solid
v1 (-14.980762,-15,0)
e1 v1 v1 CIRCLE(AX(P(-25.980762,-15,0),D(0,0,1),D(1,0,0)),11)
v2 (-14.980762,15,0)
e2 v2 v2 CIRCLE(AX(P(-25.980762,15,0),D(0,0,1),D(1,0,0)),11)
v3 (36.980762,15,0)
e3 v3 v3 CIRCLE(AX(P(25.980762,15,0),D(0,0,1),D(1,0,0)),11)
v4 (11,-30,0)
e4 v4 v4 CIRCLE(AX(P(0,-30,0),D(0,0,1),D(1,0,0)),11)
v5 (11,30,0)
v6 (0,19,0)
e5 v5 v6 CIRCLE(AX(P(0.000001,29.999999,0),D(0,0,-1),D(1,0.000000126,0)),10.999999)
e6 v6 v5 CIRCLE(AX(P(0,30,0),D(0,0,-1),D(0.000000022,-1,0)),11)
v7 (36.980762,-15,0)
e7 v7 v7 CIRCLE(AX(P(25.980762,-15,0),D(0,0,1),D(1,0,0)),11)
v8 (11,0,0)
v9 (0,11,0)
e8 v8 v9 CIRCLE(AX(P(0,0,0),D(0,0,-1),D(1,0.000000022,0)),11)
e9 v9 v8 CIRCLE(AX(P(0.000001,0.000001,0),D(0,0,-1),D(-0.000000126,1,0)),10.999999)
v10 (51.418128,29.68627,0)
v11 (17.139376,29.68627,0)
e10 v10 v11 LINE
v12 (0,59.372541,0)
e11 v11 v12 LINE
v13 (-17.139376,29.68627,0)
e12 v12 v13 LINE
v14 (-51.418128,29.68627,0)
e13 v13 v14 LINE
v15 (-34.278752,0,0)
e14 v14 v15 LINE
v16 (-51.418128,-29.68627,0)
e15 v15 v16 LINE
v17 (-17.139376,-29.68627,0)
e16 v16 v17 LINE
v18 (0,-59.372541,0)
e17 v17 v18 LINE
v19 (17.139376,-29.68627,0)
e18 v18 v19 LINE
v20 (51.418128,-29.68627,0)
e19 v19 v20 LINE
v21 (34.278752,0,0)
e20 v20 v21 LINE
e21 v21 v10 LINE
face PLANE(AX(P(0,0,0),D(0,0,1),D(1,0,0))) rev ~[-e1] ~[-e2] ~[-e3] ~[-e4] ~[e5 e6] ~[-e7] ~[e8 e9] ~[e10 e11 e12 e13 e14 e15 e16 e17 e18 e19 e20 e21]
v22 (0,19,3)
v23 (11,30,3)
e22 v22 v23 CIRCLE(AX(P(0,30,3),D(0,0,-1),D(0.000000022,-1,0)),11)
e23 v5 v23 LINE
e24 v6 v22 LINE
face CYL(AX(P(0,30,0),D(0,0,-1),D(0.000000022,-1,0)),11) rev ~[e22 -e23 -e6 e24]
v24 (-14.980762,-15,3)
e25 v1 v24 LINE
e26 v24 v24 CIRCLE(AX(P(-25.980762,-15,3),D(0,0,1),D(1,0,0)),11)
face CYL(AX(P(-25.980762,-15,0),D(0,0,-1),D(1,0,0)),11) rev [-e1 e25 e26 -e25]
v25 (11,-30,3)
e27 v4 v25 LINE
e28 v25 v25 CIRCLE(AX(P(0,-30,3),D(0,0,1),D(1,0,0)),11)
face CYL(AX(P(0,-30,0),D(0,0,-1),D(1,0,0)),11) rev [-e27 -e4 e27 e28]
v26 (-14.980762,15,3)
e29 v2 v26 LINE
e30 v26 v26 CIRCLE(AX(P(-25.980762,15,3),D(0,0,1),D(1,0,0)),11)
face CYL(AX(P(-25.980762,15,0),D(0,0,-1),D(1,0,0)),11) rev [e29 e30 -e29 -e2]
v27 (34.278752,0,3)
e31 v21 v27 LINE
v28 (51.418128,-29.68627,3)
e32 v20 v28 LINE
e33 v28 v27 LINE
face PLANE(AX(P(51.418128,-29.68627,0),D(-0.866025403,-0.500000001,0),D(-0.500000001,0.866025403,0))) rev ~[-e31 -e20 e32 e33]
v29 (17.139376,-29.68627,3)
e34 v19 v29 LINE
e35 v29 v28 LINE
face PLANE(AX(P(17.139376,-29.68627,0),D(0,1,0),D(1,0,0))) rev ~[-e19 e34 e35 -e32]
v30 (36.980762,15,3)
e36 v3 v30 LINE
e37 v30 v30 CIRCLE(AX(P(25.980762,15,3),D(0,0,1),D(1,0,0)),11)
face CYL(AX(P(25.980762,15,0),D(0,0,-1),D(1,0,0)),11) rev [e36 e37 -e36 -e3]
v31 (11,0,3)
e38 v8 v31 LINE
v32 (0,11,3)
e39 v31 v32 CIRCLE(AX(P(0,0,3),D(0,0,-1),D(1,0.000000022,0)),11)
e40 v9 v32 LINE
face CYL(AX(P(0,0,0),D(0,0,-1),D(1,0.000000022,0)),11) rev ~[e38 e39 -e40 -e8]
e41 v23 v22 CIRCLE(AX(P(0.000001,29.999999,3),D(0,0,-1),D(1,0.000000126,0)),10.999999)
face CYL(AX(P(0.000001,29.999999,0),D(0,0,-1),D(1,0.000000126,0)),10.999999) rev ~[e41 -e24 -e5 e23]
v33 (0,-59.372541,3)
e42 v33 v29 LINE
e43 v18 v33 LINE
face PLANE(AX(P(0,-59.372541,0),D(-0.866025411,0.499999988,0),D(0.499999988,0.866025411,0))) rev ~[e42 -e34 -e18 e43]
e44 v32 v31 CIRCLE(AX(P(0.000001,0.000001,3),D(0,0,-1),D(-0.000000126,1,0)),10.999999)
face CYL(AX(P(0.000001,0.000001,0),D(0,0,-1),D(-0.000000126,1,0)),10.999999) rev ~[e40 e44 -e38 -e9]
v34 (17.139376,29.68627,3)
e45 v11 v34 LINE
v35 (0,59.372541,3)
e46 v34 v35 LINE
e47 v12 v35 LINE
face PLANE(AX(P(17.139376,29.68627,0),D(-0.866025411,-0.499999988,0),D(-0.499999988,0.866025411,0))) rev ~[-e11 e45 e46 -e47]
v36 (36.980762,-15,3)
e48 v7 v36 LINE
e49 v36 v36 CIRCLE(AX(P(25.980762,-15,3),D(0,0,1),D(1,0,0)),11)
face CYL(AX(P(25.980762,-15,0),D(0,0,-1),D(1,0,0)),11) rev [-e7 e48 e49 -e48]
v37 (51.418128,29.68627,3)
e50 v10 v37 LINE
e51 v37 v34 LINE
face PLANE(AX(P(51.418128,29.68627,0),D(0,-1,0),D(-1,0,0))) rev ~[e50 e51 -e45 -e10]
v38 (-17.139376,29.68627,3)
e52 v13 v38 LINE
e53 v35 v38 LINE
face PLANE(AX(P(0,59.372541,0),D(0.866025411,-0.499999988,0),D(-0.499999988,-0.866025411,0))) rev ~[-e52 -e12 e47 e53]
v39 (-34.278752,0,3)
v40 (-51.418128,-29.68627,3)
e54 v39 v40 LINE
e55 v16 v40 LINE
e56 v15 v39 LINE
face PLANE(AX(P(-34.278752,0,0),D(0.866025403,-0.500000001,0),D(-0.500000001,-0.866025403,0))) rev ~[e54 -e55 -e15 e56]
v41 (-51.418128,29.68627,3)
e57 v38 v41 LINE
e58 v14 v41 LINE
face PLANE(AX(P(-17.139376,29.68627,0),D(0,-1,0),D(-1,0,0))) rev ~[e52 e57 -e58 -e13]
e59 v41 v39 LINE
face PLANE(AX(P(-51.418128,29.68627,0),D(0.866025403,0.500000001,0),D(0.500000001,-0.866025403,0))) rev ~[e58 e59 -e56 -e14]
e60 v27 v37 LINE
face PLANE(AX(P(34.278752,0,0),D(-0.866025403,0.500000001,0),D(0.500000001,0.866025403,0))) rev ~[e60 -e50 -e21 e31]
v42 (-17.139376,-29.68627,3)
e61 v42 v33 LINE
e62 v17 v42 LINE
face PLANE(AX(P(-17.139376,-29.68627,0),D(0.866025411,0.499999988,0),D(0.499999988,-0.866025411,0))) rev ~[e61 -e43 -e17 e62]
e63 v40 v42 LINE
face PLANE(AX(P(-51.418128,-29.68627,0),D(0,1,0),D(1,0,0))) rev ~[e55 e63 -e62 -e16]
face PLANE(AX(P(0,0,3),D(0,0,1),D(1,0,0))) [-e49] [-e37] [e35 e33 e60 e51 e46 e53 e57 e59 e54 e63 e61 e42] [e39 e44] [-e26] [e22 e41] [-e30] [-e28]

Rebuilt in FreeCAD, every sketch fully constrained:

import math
import FreeCAD as App
import Part
import Sketcher
Q = App.Units.Quantity

doc = App.newDocument("Part")
params = doc.addObject("Spreadsheet::Sheet", "Params")
for row, (alias, value) in enumerate([
    ("sketch1_diameter", "22 mm"),
    ("pad1_length", "3 mm"),
], start=1):
    params.set(f"A{row}", alias)
    params.set(f"B{row}", "=" + value)
    params.setAlias(f"B{row}", alias)

body = doc.addObject("PartDesign::Body", "Body")

# Sketch on XY plane
sketch1 = doc.addObject("Sketcher::SketchObject", "Sketch")
body.addObject(sketch1)
sketch1.AttachmentSupport = (doc.XY_Plane, [""])
sketch1.MapMode = "FlatFace"
sketch1.addGeometry([
    Part.LineSegment(App.Vector(-17, 30, 0), App.Vector(-51, 30, 0)),  # 0
    Part.LineSegment(App.Vector(-51, 30, 0), App.Vector(-34, 0, 0)),  # 1
    Part.LineSegment(App.Vector(-34, 0, 0), App.Vector(-51, -30, 0)),  # 2
    Part.LineSegment(App.Vector(-51, -30, 0), App.Vector(-17, -30, 0)),  # 3
    Part.LineSegment(App.Vector(-17, -30, 0), App.Vector(0, -59, 0)),  # 4
    Part.LineSegment(App.Vector(0, -59, 0), App.Vector(17, -30, 0)),  # 5
    Part.LineSegment(App.Vector(17, -30, 0), App.Vector(51, -30, 0)),  # 6
    Part.LineSegment(App.Vector(51, -30, 0), App.Vector(34, 0, 0)),  # 7
    Part.LineSegment(App.Vector(34, 0, 0), App.Vector(51, 30, 0)),  # 8
    Part.LineSegment(App.Vector(51, 30, 0), App.Vector(17, 30, 0)),  # 9
    Part.LineSegment(App.Vector(17, 30, 0), App.Vector(0, 59, 0)),  # 10
    Part.LineSegment(App.Vector(0, 59, 0), App.Vector(-17, 30, 0)),  # 11
    Part.Circle(App.Vector(-26, -15, 0), App.Vector(0, 0, 1), 11),  # 12
    Part.ArcOfCircle(Part.Circle(App.Vector(0, 0, 0), App.Vector(0, 0, 1), 11), math.radians(90), math.radians(360)),  # 13
    Part.ArcOfCircle(Part.Circle(App.Vector(0, 0, 0), App.Vector(0, 0, 1), 11), math.radians(0), math.radians(90)),  # 14
    Part.Circle(App.Vector(0, -30, 0), App.Vector(0, 0, 1), 11),  # 15
    Part.Circle(App.Vector(26, -15, 0), App.Vector(0, 0, 1), 11),  # 16
    Part.Circle(App.Vector(-26, 15, 0), App.Vector(0, 0, 1), 11),  # 17
    Part.ArcOfCircle(Part.Circle(App.Vector(0, 30, 0), App.Vector(0, 0, 1), 11), math.radians(0), math.radians(270)),  # 18
    Part.ArcOfCircle(Part.Circle(App.Vector(0, 30, 0), App.Vector(0, 0, 1), 11), math.radians(-90), math.radians(0)),  # 19
    Part.Circle(App.Vector(26, 15, 0), App.Vector(0, 0, 1), 11),  # 20
], False)
sketch1.addConstraint([
    Sketcher.Constraint("Coincident", 0, 2, 1, 1),
    Sketcher.Constraint("Coincident", 1, 2, 2, 1),
    Sketcher.Constraint("Coincident", 2, 2, 3, 1),
    Sketcher.Constraint("Coincident", 3, 2, 4, 1),
    Sketcher.Constraint("Coincident", 4, 2, 5, 1),
    Sketcher.Constraint("Coincident", 5, 2, 6, 1),
    Sketcher.Constraint("Coincident", 6, 2, 7, 1),
    Sketcher.Constraint("Coincident", 7, 2, 8, 1),
    Sketcher.Constraint("Coincident", 8, 2, 9, 1),
    Sketcher.Constraint("Coincident", 9, 2, 10, 1),
    Sketcher.Constraint("Coincident", 10, 2, 11, 1),
    Sketcher.Constraint("Coincident", 11, 2, 0, 1),
    Sketcher.Constraint("Tangent", 13, 1, 14, 2),
    Sketcher.Constraint("Coincident", 14, 1, 13, 2),
    Sketcher.Constraint("Tangent", 18, 1, 19, 2),
    Sketcher.Constraint("Coincident", 19, 1, 18, 2),
    Sketcher.Constraint("Horizontal", 0),
    Sketcher.Constraint("Horizontal", 3),
    Sketcher.Constraint("Horizontal", 6),
    Sketcher.Constraint("Horizontal", 9),
    Sketcher.Constraint("Coincident", 13, 3, -1, 1),
    Sketcher.Constraint("Equal", 12, 13),
    Sketcher.Constraint("Equal", 14, 15),
    Sketcher.Constraint("Equal", 15, 16),
    Sketcher.Constraint("Equal", 16, 17),
    Sketcher.Constraint("Equal", 17, 18),
    Sketcher.Constraint("Equal", 19, 20),
    Sketcher.Constraint("Symmetric", 16, 3, 17, 3, -1, 1),
    Sketcher.Constraint("Symmetric", 15, 3, 18, 3, -1, 1),
    Sketcher.Constraint("Symmetric", 12, 3, 20, 3, -1, 1),
    Sketcher.Constraint("Symmetric", 0, 2, 6, 2, -1, 1),
    Sketcher.Constraint("Symmetric", 1, 2, 7, 2, -1, 1),
    Sketcher.Constraint("Symmetric", 2, 2, 8, 2, -1, 1),
    Sketcher.Constraint("Symmetric", 4, 2, 10, 2, -1, 1),
    Sketcher.Constraint("Symmetric", 12, 3, 16, 3, -2),
    Sketcher.Constraint("Symmetric", 3, 2, 5, 2, -2),
    Sketcher.Constraint("PointOnObject", 15, 3, -2),
    Sketcher.Constraint("PointOnObject", 1, 2, -1),
    Sketcher.Constraint("PointOnObject", 4, 2, -2),
    Sketcher.Constraint("PointOnObject", 13, 1, -2),
    Sketcher.Constraint("PointOnObject", 14, 1, -1),
    Sketcher.Constraint("PointOnObject", 19, 1, -2),
    Sketcher.Constraint("Parallel", 1, 4),
    Sketcher.Constraint("Parallel", 2, 5),
    Sketcher.Constraint("Parallel", 7, 10),
    Sketcher.Constraint("Parallel", 8, 11),
    Sketcher.Constraint("Horizontal", 19, 3, 18, 1),
    Sketcher.Constraint("Equal", 2, 4),
    Sketcher.Constraint("Diameter", 12, 22.0),
    Sketcher.Constraint("Angle", 1, Q("-60 deg")),
    Sketcher.Constraint("DistanceY", 12, 3, -1, 1, 15.0),
    Sketcher.Constraint("DistanceY", 15, 3, -1, 1, 30.0),
    Sketcher.Constraint("Distance", 1, 34.278752),
    Sketcher.Constraint("DistanceX", 0, 2, 0, 1, 34.278752),
    Sketcher.Constraint("DistanceX", 12, 3, -1, 1, 25.980762),
])
sketch1.setExpression("Constraints[48]", "Params.sketch1_diameter")
pad1 = doc.addObject("PartDesign::Pad", "Pad")
body.addObject(pad1)
pad1.Profile = sketch1
pad1.setExpression("Length", "Params.pad1_length")

doc.recompute()
